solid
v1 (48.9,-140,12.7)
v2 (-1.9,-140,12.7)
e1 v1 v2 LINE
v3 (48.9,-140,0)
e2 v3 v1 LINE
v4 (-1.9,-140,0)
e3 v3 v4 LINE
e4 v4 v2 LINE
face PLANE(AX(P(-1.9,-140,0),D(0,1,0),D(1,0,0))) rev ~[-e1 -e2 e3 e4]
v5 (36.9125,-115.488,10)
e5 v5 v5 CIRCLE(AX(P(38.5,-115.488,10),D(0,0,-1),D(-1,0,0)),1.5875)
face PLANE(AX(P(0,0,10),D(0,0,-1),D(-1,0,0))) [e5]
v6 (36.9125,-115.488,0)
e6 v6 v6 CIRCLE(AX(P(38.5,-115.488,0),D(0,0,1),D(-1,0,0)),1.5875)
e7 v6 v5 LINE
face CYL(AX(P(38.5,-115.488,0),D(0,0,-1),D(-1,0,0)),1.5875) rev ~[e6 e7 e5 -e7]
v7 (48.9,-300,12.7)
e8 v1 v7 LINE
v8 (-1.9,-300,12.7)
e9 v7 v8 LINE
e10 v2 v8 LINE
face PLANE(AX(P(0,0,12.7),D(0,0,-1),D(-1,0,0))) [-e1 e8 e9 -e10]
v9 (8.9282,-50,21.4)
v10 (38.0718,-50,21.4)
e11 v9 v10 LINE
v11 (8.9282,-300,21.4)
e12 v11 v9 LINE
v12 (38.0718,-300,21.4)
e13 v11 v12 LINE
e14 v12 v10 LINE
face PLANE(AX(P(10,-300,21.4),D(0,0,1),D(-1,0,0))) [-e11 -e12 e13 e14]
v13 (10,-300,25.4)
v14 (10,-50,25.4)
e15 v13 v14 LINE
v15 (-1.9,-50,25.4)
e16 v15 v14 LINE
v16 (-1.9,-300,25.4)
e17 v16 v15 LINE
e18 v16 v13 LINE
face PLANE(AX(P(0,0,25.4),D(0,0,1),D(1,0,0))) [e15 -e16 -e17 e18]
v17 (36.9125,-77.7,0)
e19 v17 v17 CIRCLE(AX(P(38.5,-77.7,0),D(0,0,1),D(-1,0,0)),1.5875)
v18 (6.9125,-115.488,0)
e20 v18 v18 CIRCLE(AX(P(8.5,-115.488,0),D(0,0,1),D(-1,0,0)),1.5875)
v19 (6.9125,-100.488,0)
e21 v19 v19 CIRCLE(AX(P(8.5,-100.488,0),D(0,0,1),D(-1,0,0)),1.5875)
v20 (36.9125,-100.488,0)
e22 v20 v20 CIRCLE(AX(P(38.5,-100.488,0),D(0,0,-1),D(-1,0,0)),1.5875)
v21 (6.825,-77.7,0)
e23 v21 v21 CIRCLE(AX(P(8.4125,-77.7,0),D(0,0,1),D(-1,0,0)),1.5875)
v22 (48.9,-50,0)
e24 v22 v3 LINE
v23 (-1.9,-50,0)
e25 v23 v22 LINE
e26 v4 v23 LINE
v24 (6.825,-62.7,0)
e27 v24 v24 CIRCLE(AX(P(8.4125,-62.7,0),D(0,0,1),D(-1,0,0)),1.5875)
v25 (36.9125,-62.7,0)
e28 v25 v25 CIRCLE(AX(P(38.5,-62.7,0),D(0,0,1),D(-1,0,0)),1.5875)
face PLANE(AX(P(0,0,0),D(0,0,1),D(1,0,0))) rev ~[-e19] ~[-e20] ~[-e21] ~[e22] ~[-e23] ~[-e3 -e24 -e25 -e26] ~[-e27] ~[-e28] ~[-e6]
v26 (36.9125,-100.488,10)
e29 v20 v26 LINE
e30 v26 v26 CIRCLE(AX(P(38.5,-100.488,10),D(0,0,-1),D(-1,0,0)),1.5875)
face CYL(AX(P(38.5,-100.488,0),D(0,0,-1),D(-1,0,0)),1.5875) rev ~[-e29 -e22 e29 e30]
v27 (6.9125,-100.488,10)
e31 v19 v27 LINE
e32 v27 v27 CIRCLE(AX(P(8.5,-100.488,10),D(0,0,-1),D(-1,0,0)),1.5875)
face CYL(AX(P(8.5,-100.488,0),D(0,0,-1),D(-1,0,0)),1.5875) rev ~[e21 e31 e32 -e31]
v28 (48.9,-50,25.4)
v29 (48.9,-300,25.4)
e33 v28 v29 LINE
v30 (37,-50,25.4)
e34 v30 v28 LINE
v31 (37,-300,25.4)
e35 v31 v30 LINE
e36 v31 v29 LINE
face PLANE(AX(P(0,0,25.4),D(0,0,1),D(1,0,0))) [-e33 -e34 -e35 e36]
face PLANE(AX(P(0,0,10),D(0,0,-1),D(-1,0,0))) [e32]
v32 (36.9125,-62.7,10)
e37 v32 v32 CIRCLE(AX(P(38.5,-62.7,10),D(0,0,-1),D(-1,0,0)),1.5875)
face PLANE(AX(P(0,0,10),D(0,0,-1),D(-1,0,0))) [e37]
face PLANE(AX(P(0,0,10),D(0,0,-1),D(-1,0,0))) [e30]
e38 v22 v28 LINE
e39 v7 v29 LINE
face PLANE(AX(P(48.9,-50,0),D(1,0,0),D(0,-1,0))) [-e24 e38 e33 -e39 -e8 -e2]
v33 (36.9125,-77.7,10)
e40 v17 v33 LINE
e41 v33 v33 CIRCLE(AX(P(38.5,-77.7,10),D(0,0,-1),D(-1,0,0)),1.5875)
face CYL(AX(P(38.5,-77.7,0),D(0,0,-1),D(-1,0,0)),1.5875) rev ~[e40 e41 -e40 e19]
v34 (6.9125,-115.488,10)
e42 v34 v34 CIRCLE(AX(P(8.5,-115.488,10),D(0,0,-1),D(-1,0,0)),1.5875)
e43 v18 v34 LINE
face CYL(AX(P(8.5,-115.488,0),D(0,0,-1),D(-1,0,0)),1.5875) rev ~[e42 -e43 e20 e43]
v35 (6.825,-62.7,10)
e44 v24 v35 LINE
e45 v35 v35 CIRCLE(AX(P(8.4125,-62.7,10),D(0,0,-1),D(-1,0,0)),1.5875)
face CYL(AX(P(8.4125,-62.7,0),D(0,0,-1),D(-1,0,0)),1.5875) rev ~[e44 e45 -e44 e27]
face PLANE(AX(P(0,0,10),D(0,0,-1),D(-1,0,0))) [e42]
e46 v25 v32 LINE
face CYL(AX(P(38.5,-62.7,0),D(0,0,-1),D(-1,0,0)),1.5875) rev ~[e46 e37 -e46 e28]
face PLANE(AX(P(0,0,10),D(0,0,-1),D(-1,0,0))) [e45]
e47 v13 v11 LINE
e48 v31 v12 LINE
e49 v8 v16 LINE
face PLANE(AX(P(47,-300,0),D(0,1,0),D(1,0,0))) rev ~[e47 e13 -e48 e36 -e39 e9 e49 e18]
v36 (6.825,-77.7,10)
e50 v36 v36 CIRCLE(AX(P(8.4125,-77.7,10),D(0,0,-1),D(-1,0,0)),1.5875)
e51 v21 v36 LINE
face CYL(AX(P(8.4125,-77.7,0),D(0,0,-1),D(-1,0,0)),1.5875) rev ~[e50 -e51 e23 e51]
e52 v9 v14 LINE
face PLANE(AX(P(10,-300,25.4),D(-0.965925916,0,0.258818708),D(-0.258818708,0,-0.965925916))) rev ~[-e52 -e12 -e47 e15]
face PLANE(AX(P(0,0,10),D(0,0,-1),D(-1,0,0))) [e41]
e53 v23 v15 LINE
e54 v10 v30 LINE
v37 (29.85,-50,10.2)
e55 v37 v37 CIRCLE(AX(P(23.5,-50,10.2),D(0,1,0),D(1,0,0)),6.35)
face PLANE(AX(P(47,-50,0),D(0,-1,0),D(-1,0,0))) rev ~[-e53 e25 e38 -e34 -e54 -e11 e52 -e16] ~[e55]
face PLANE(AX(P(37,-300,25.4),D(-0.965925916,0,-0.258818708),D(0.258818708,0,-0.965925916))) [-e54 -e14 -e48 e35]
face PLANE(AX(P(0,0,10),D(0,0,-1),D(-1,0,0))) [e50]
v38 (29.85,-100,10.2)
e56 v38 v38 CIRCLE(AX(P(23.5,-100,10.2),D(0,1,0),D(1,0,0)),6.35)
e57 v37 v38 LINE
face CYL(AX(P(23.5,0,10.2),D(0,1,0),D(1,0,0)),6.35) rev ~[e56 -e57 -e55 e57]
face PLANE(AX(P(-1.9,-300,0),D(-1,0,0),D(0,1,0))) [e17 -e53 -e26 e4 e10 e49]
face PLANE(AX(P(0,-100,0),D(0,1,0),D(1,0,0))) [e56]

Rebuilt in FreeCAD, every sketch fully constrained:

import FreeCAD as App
import Part
import Sketcher

V = App.Vector
Q = App.Units.Quantity


def add_polygon(sketch, points):
    """Adds a closed chain of lines whose ends are joined by coincident constraints."""
    first, n = sketch.GeometryCount, len(points)
    for a, b in zip(points, points[1:] + points[:1]):
        sketch.addGeometry(Part.LineSegment(App.Vector(*a, 0), App.Vector(*b, 0)), False)
    for i in range(n):
        sketch.addConstraint(Sketcher.Constraint("Coincident", first + i, 2, first + (i + 1) % n, 1))

doc = App.newDocument("Part")
params = doc.addObject("Spreadsheet::Sheet", "Params")
for row, (alias, value) in enumerate([
    ("pad1_length", "1 in"),
    ("sketch2_width", "1.063 in"),
    ("pocket1_length", "300 mm"),
    ("sketch3_diameter", "0.125 in"),
    ("pocket2_length", "0.3937008 in"),
    ("sketch4_height", "0.5 in"),
    ("pocket3_length", "160 mm"),
    ("sketch5_diameter", "0.5 in"),
    ("pocket4_length", "3.9370079 in"),
    ("sketch6_diameter", "0.125 in"),
    ("pocket5_length", "0.3937008 in"),
    ("pocket6_length", "1.1811024 in"),
    ("pad2_length", "1 in"),
    ("sketch9_width", "2 in"),
    ("pocket7_length", "0.5 in"),
], start=1):
    params.set(f"A{row}", alias)
    params.set(f"B{row}", "=" + value)
    params.setAlias(f"B{row}", alias)

body = doc.addObject("PartDesign::Body", "Body")

# Sketch on XY plane
sketch1 = doc.addObject("Sketcher::SketchObject", "Sketch")
body.addObject(sketch1)
sketch1.AttachmentSupport = (doc.XY_Plane, [""])
sketch1.MapMode = "FlatFace"
add_polygon(sketch1, [(47, 0), (0, 0), (0, -300), (47, -300)])  # lines 0-3
sketch1.addConstraint(Sketcher.Constraint("Horizontal", 0))
sketch1.addConstraint(Sketcher.Constraint("Vertical", 1))
sketch1.addConstraint(Sketcher.Constraint("Horizontal", 2))
sketch1.addConstraint(Sketcher.Constraint("Vertical", 3))
sketch1.addConstraint(Sketcher.Constraint("Coincident", 0, 2, -1, 1))
sketch1.addConstraint(Sketcher.Constraint("DistanceX", 0, 2, 0, 1, Q("1.8504 in")))
sketch1.addConstraint(Sketcher.Constraint("DistanceY", 1, 2, 1, 1, 300.0))
pad1 = doc.addObject("PartDesign::Pad", "Pad")
body.addObject(pad1)
pad1.Profile = sketch1
pad1.setExpression("Length", "Params.pad1_length")

# Sketch on XZ plane
sketch2 = doc.addObject("Sketcher::SketchObject", "Sketch001")
body.addObject(sketch2)
sketch2.AttachmentSupport = (doc.XZ_Plane, [""])
sketch2.MapMode = "FlatFace"
sketch2.AttachmentOffset = App.Placement(V(0, 0, 300), App.Rotation())
add_polygon(sketch2, [(37, 25.4), (10, 25.4), (8.9282, 21.4), (38.071796, 21.399999)])  # lines 0-3
sketch2.addConstraint(Sketcher.Constraint("Horizontal", 0))
sketch2.addConstraint(Sketcher.Constraint("Horizontal", 2))
sketch2.addConstraint(Sketcher.Constraint("Equal", 1, 3))
sketch2.addConstraint(Sketcher.Constraint("Angle", 1, Q("-105 deg")))
sketch2.addConstraint(Sketcher.Constraint("DistanceY", -1, 1, 0, 2, Q("1 in")))
sketch2.addConstraint(Sketcher.Constraint("DistanceX", -1, 1, 0, 2, Q("0.3937 in")))
sketch2.addConstraint(Sketcher.Constraint("DistanceX", 0, 2, 0, 1, Q("1.063 in")))
sketch2.addConstraint(Sketcher.Constraint("DistanceY", 1, 2, 0, 2, 4.0))
sketch2.setExpression("Constraints[10]", "Params.sketch2_width")
pocket1 = doc.addObject("PartDesign::Pocket", "Pocket")
body.addObject(pocket1)
pocket1.Profile = sketch2
pocket1.setExpression("Length", "Params.pocket1_length")

# Sketch on XY plane
sketch3 = doc.addObject("Sketcher::SketchObject", "Sketch002")
body.addObject(sketch3)
sketch3.AttachmentSupport = (doc.XY_Plane, [""])
sketch3.MapMode = "FlatFace"
sketch3.addGeometry(Part.Circle(V(8.5, -22.5, 0), V(0, 0, 1), 1.5875), False)
sketch3.addGeometry(Part.Circle(V(8.5, -100.488, 0), V(0, 0, 1), 1.5875), False)
sketch3.addGeometry(Part.Circle(V(8.5, -7.5, 0), V(0, 0, 1), 1.5875), False)
sketch3.addGeometry(Part.Circle(V(8.5, -115.488, 0), V(0, 0, 1), 1.5875), False)
sketch3.addGeometry(Part.Circle(V(38.5, -22.5, 0), V(0, 0, 1), 1.5875), False)
sketch3.addGeometry(Part.Circle(V(38.5, -7.5, 0), V(0, 0, 1), 1.5875), False)
sketch3.addGeometry(Part.Circle(V(38.5, -115.488, 0), V(0, 0, 1), 1.5875), False)
sketch3.addGeometry(Part.Circle(V(38.5, -100.488, 0), V(0, 0, 1), 1.5875), False)
sketch3.addConstraint(Sketcher.Constraint("Equal", 0, 1))
sketch3.addConstraint(Sketcher.Constraint("Equal", 1, 2))
sketch3.addConstraint(Sketcher.Constraint("Equal", 2, 3))
sketch3.addConstraint(Sketcher.Constraint("Equal", 3, 4))
sketch3.addConstraint(Sketcher.Constraint("Equal", 4, 5))
sketch3.addConstraint(Sketcher.Constraint("Equal", 5, 6))
sketch3.addConstraint(Sketcher.Constraint("Equal", 6, 7))
sketch3.addConstraint(Sketcher.Constraint("Horizontal", 0, 3, 4, 3))
sketch3.addConstraint(Sketcher.Constraint("Horizontal", 2, 3, 5, 3))
sketch3.addConstraint(Sketcher.Constraint("Horizontal", 3, 3, 6, 3))
sketch3.addConstraint(Sketcher.Constraint("Horizontal", 1, 3, 7, 3))
sketch3.addConstraint(Sketcher.Constraint("Vertical", 0, 3, 1, 3))
sketch3.addConstraint(Sketcher.Constraint("Vertical", 1, 3, 2, 3))
sketch3.addConstraint(Sketcher.Constraint("Vertical", 2, 3, 3, 3))
sketch3.addConstraint(Sketcher.Constraint("Vertical", 4, 3, 5, 3))
sketch3.addConstraint(Sketcher.Constraint("Vertical", 5, 3, 6, 3))
sketch3.addConstraint(Sketcher.Constraint("Vertical", 6, 3, 7, 3))
sketch3.addConstraint(Sketcher.Constraint("Diameter", 0, Q("0.125 in")))
sketch3.addConstraint(Sketcher.Constraint("DistanceY", 2, 3, -1, 1, 7.5))
sketch3.addConstraint(Sketcher.Constraint("DistanceY", 0, 3, 2, 3, 15.0))
sketch3.addConstraint(Sketcher.Constraint("DistanceY", 3, 3, 1, 3, 15.0))
sketch3.addConstraint(Sketcher.Constraint("DistanceY", 1, 3, 0, 3, Q("3.0704 in")))
sketch3.addConstraint(Sketcher.Constraint("DistanceX", 0, 3, 4, 3, Q("1.1811 in")))
sketch3.addConstraint(Sketcher.Constraint("DistanceX", -1, 1, 0, 3, 8.5))
sketch3.setExpression("Constraints[17]", "Params.sketch3_diameter")
pocket2 = doc.addObject("PartDesign::Pocket", "Pocket001")
body.addObject(pocket2)
pocket2.Profile = sketch3
pocket2.setExpression("Length", "Params.pocket2_length")
pocket2.Reversed = True

# Sketch on XZ plane
sketch4 = doc.addObject("Sketcher::SketchObject", "Sketch003")
body.addObject(sketch4)
sketch4.AttachmentSupport = (doc.XZ_Plane, [""])
sketch4.MapMode = "FlatFace"
sketch4.AttachmentOffset = App.Placement(V(0, 0, 300), App.Rotation())
add_polygon(sketch4, [(0, 12.7), (0, 0), (47, 0), (47, 12.7)])  # lines 0-3
sketch4.addConstraint(Sketcher.Constraint("Vertical", 0))
sketch4.addConstraint(Sketcher.Constraint("Horizontal", 1))
sketch4.addConstraint(Sketcher.Constraint("Vertical", 2))
sketch4.addConstraint(Sketcher.Constraint("Horizontal", 3))
sketch4.addConstraint(Sketcher.Constraint("Coincident", 0, 2, -1, 1))
sketch4.addConstraint(Sketcher.Constraint("DistanceY", 0, 2, 0, 1, Q("0.5 in")))
sketch4.addConstraint(Sketcher.Constraint("DistanceX", 1, 1, 1, 2, Q("1.8504 in")))
sketch4.setExpression("Constraints[9]", "Params.sketch4_height")
pocket3 = doc.addObject("PartDesign::Pocket", "Pocket002")
body.addObject(pocket3)
pocket3.Profile = sketch4
pocket3.setExpression("Length", "Params.pocket3_length")

# Sketch on XZ plane
sketch5 = doc.addObject("Sketcher::SketchObject", "Sketch004")
body.addObject(sketch5)
sketch5.AttachmentSupport = (doc.XZ_Plane, [""])
sketch5.MapMode = "FlatFace"
sketch5.addGeometry(Part.Circle(V(23.5, 10.2, 0), V(0, 0, 1), 6.35), False)
sketch5.addConstraint(Sketcher.Constraint("Diameter", 0, Q("0.5 in")))
sketch5.addConstraint(Sketcher.Constraint("DistanceX", -1, 1, 0, 3, Q("0.9252 in")))
sketch5.addConstraint(Sketcher.Constraint("DistanceY", -1, 1, 0, 3, 10.2))
sketch5.setExpression("Constraints[0]", "Params.sketch5_diameter")
pocket4 = doc.addObject("PartDesign::Pocket", "Pocket003")
body.addObject(pocket4)
pocket4.Profile = sketch5
pocket4.setExpression("Length", "Params.pocket4_length")
pocket4.Reversed = True

# Sketch on XY plane
sketch6 = doc.addObject("Sketcher::SketchObject", "Sketch005")
body.addObject(sketch6)
sketch6.AttachmentSupport = (doc.XY_Plane, [""])
sketch6.MapMode = "FlatFace"
sketch6.addGeometry(Part.Circle(V(8.4125, -77.7, 0), V(0, 0, 1), 1.5875), False)
sketch6.addGeometry(Part.Circle(V(38.5, -77.7, 0), V(0, 0, 1), 1.5875), False)
sketch6.addGeometry(Part.Circle(V(38.5, -62.7, 0), V(0, 0, 1), 1.5875), False)
sketch6.addGeometry(Part.Circle(V(8.4125, -62.7, 0), V(0, 0, 1), 1.5875), False)
sketch6.addConstraint(Sketcher.Constraint("Equal", 0, 1))
sketch6.addConstraint(Sketcher.Constraint("Equal", 1, 2))
sketch6.addConstraint(Sketcher.Constraint("Equal", 2, 3))
sketch6.addConstraint(Sketcher.Constraint("Horizontal", 0, 3, 1, 3))
sketch6.addConstraint(Sketcher.Constraint("Horizontal", 2, 3, 3, 3))
sketch6.addConstraint(Sketcher.Constraint("Vertical", 1, 3, 2, 3))
sketch6.addConstraint(Sketcher.Constraint("Vertical", 0, 3, 3, 3))
sketch6.addConstraint(Sketcher.Constraint("Diameter", 0, Q("0.125 in")))
sketch6.addConstraint(Sketcher.Constraint("DistanceX", -1, 1, 0, 3, Q("0.3312 in")))
sketch6.addConstraint(Sketcher.Constraint("DistanceY", 2, 3, -1, 1, Q("2.4685 in")))
sketch6.addConstraint(Sketcher.Constraint("DistanceY", 0, 3, -1, 1, 77.7))
sketch6.addConstraint(Sketcher.Constraint("DistanceX", -1, 1, 1, 3, 38.5))
sketch6.setExpression("Constraints[7]", "Params.sketch6_diameter")
pocket5 = doc.addObject("PartDesign::Pocket", "Pocket004")
body.addObject(pocket5)
pocket5.Profile = sketch6
pocket5.setExpression("Length", "Params.pocket5_length")
pocket5.Reversed = True

# Sketch on XY plane
sketch7 = doc.addObject("Sketcher::SketchObject", "Sketch006")
body.addObject(sketch7)
sketch7.AttachmentSupport = (doc.XY_Plane, [""])
sketch7.MapMode = "FlatFace"
add_polygon(sketch7, [(47, 0), (47, -50), (0, -50), (0, 0)])  # lines 0-3
sketch7.addConstraint(Sketcher.Constraint("Vertical", 0))
sketch7.addConstraint(Sketcher.Constraint("Horizontal", 1))
sketch7.addConstraint(Sketcher.Constraint("Vertical", 2))
sketch7.addConstraint(Sketcher.Constraint("Horizontal", 3))
sketch7.addConstraint(Sketcher.Constraint("Coincident", 2, 2, -1, 1))
sketch7.addConstraint(Sketcher.Constraint("DistanceY", 0, 2, 0, 1, Q("1.9685 in")))
sketch7.addConstraint(Sketcher.Constraint("DistanceX", 1, 2, 1, 1, Q("1.8504 in")))
pocket6 = doc.addObject("PartDesign::Pocket", "Pocket005")
body.addObject(pocket6)
pocket6.Profile = sketch7
pocket6.setExpression("Length", "Params.pocket6_length")
pocket6.Reversed = True

# Sketch on XY plane
sketch8 = doc.addObject("Sketcher::SketchObject", "Sketch007")
body.addObject(sketch8)
sketch8.AttachmentSupport = (doc.XY_Plane, [""])
sketch8.MapMode = "FlatFace"
add_polygon(sketch8, [(-1.9, -50), (0, -50), (0, -300), (-1.9, -300)])  # lines 0-3
add_polygon(sketch8, [(47, -300), (47, -50), (48.9, -50), (48.9, -300)])  # lines 4-7
sketch8.addConstraint(Sketcher.Constraint("Horizontal", 0))
sketch8.addConstraint(Sketcher.Constraint("Vertical", 1))
sketch8.addConstraint(Sketcher.Constraint("Horizontal", 2))
sketch8.addConstraint(Sketcher.Constraint("Vertical", 3))
sketch8.addConstraint(Sketcher.Constraint("Vertical", 4))
sketch8.addConstraint(Sketcher.Constraint("Horizontal", 5))
sketch8.addConstraint(Sketcher.Constraint("Vertical", 6))
sketch8.addConstraint(Sketcher.Constraint("Horizontal", 7))
sketch8.addConstraint(Sketcher.Constraint("PointOnObject", 0, 2, -2))
sketch8.addConstraint(Sketcher.Constraint("Horizontal", 3, 2, 4, 2))
sketch8.addConstraint(Sketcher.Constraint("Horizontal", 2, 2, 6, 2))
sketch8.addConstraint(Sketcher.Constraint("Equal", 2, 5))
sketch8.addConstraint(Sketcher.Constraint("DistanceX", 0, 1, 0, 2, Q("0.0748 in")))
sketch8.addConstraint(Sketcher.Constraint("DistanceX", 3, 2, 5, 2, Q("2 in")))
sketch8.addConstraint(Sketcher.Constraint("DistanceY", 1, 2, 1, 1, 250.0))
sketch8.addConstraint(Sketcher.Constraint("DistanceY", 0, 2, -1, 1, Q("1.9685 in")))
pad2 = doc.addObject("PartDesign::Pad", "Pad001")
body.addObject(pad2)
pad2.Profile = sketch8
pad2.setExpression("Length", "Params.pad2_length")

# Sketch on XY plane
sketch9 = doc.addObject("Sketcher::SketchObject", "Sketch008")
body.addObject(sketch9)
sketch9.AttachmentSupport = (doc.XY_Plane, [""])
sketch9.MapMode = "FlatFace"
add_polygon(sketch9, [(48.9, -300), (-1.9, -300), (-1.9, -140), (48.9, -140)])  # lines 0-3
sketch9.addConstraint(Sketcher.Constraint("Horizontal", 0))
sketch9.addConstraint(Sketcher.Constraint("Vertical", 1))
sketch9.addConstraint(Sketcher.Constraint("Horizontal", 2))
sketch9.addConstraint(Sketcher.Constraint("Vertical", 3))
sketch9.addConstraint(Sketcher.Constraint("DistanceX", 0, 2, 0, 1, Q("2 in")))
sketch9.addConstraint(Sketcher.Constraint("DistanceY", 1, 1, 1, 2, 160.0))
sketch9.addConstraint(Sketcher.Constraint("DistanceX", 0, 2, -1, 1, Q("0.0748 in")))
sketch9.addConstraint(Sketcher.Constraint("DistanceY", 1, 2, -1, 1, Q("5.5118 in")))
sketch9.setExpression("Constraints[8]", "Params.sketch9_width")
pocket7 = doc.addObject("PartDesign::Pocket", "Pocket006")
body.addObject(pocket7)
pocket7.Profile = sketch9
pocket7.setExpression("Length", "Params.pocket7_length")
pocket7.Reversed = True

doc.recompute()
